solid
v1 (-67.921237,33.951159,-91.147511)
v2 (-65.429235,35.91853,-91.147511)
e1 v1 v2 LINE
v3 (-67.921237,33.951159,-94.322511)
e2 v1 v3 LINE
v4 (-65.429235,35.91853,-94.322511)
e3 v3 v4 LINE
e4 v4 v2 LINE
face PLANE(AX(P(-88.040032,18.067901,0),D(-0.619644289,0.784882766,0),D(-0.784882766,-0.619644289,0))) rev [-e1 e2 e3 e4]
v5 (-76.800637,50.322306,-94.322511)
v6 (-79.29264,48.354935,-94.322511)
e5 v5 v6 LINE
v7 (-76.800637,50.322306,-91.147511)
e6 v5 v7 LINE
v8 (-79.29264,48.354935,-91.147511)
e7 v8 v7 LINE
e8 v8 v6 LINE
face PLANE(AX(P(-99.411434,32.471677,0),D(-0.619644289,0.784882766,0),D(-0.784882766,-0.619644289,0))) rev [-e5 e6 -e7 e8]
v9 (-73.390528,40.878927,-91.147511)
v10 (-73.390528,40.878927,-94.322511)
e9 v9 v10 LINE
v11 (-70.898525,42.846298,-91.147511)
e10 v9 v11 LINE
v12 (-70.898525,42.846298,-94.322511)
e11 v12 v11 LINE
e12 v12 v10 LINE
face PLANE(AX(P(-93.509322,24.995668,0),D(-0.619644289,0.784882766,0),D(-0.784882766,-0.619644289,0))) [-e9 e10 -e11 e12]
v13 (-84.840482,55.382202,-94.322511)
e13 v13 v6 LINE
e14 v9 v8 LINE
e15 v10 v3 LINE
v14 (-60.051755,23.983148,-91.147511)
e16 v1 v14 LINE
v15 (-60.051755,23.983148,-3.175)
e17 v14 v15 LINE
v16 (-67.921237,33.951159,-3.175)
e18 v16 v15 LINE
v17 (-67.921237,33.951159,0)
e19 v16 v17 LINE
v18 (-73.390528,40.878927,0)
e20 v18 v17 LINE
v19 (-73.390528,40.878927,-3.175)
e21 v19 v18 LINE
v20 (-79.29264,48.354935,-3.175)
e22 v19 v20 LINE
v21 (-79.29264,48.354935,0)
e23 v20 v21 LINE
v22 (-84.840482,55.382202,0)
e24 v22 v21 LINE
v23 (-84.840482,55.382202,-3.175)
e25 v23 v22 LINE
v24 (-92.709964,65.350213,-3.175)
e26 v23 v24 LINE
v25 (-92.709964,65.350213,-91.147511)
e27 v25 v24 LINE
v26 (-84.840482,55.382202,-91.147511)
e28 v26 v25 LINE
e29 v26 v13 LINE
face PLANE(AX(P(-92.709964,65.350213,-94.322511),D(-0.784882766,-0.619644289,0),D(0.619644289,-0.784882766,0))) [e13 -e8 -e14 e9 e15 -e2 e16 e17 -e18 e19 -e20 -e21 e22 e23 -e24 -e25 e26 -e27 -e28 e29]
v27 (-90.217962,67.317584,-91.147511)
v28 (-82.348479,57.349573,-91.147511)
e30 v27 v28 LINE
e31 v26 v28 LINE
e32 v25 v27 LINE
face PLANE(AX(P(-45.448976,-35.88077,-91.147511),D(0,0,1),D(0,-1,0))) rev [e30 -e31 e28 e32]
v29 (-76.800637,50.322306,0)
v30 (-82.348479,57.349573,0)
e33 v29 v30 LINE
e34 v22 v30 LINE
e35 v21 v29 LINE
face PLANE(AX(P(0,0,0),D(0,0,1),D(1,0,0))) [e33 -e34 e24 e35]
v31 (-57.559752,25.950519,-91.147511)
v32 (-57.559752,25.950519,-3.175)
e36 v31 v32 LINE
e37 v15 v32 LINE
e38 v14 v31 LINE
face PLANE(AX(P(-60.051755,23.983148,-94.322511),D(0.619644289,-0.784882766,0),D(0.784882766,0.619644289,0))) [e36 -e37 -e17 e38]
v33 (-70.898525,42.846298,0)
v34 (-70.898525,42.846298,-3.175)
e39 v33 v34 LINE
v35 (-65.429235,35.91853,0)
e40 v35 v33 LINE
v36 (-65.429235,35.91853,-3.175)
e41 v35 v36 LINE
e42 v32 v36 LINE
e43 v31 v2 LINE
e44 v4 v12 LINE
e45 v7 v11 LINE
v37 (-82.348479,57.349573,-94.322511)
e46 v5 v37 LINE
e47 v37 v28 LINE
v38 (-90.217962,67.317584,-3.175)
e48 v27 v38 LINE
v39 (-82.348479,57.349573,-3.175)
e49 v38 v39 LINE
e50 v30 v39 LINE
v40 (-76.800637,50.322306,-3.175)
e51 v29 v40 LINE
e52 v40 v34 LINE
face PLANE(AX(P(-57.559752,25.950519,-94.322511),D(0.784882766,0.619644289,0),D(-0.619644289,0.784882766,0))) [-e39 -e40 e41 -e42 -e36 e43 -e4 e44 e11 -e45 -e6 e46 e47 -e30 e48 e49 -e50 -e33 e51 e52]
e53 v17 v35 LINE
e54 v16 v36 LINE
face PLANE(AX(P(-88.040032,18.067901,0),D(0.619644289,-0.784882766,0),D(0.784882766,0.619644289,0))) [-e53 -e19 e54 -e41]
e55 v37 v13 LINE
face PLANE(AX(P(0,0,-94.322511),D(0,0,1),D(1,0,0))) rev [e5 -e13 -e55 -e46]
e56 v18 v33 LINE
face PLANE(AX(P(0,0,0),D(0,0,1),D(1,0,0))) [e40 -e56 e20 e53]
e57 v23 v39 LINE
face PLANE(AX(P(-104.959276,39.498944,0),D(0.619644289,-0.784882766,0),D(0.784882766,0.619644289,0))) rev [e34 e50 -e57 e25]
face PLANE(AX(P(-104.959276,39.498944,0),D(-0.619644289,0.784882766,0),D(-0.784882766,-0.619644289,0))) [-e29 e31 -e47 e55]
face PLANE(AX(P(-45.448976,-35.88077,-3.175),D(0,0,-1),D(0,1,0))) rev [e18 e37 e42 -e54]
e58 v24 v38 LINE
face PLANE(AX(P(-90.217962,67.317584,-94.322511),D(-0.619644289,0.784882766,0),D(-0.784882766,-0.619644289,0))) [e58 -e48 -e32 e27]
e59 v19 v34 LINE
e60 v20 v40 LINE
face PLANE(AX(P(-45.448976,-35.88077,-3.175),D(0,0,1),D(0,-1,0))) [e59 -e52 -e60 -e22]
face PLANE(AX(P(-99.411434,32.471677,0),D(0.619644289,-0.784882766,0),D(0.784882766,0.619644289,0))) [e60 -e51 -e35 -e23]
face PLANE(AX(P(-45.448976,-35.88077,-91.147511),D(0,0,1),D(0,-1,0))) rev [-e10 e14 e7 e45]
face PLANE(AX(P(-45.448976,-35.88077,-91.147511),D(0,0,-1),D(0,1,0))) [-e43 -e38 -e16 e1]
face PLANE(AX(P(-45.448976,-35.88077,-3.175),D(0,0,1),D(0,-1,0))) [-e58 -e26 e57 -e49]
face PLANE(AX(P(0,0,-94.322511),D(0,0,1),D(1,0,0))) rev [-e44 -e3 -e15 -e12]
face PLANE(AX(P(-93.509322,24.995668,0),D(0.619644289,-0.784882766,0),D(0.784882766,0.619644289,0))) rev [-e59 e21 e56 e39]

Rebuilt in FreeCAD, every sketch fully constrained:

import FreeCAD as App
import Part
import Sketcher
Q = App.Units.Quantity

doc = App.newDocument("Part")
body = doc.addObject("PartDesign::Body", "Body")

# Sketch on XY plane
sketch1 = doc.addObject("Sketcher::SketchObject", "Sketch")
body.addObject(sketch1)
sketch1.AttachmentSupport = (doc.XY_Plane, [""])
sketch1.MapMode = "FlatFace"
sketch1.addGeometry(Part.LineSegment(App.Vector(-57.559752, 25.950519, 0), App.Vector(-90.217962, 67.317584, 0)), False)
sketch1.addGeometry(Part.LineSegment(App.Vector(-90.217962, 67.317584, 0), App.Vector(-92.709964, 65.350213, 0)), False)
sketch1.addGeometry(Part.LineSegment(App.Vector(-92.709964, 65.350213, 0), App.Vector(-60.051755, 23.983148, 0)), False)
sketch1.addGeometry(Part.LineSegment(App.Vector(-60.051755, 23.983148, 0), App.Vector(-57.559752, 25.950519, 0)), False)
sketch1.addConstraint(Sketcher.Constraint("Coincident", 0, 2, 1, 1))
sketch1.addConstraint(Sketcher.Constraint("Coincident", 1, 2, 2, 1))
sketch1.addConstraint(Sketcher.Constraint("Coincident", 2, 2, 3, 1))
sketch1.addConstraint(Sketcher.Constraint("Coincident", 3, 2, 0, 1))
sketch1.addConstraint(Sketcher.Constraint("Perpendicular", 0, 1))
sketch1.addConstraint(Sketcher.Constraint("Perpendicular", 1, 2))
sketch1.addConstraint(Sketcher.Constraint("Perpendicular", 2, 3))
sketch1.addConstraint(Sketcher.Constraint("Distance", 1, Q("0.125 in")))
sketch1.addConstraint(Sketcher.Constraint("Distance", 0, Q("52.704769 mm")))
sketch1.addConstraint(Sketcher.Constraint("DistanceX", 0, 2, -1, 1, Q("90.217962 mm")))
sketch1.addConstraint(Sketcher.Constraint("DistanceY", -1, 1, 2, 2, Q("23.983148 mm")))
sketch1.addConstraint(Sketcher.Constraint("DistanceY", -1, 1, 3, 2, Q("25.950519 mm")))
pad1 = doc.addObject("PartDesign::Pad", "Pad")
body.addObject(pad1)
pad1.Profile = sketch1
pad1.Length = 94.322511
pad1.Reversed = True

# Sketch on an angled plane
sketch2 = doc.addObject("Sketcher::SketchObject", "Sketch001")
body.addObject(sketch2)
sketch2.Placement = App.Placement(App.Vector(-22.838179, -18.030141, 0), App.Rotation(App.Vector(0, 0, -1), App.Vector(-0.619644289, 0.784882766, 0), App.Vector(0.784882766, 0.619644289, 0), "ZXY"))
sketch2.addGeometry(Part.LineSegment(App.Vector(91.147511, 108.739456, 0), App.Vector(91.147511, 96.039456, 0)), False)
sketch2.addGeometry(Part.LineSegment(App.Vector(91.147511, 96.039456, 0), App.Vector(94.322511, 96.039456, 0)), False)
sketch2.addGeometry(Part.LineSegment(App.Vector(94.322511, 96.039456, 0), App.Vector(94.322511, 108.739456, 0)), False)
sketch2.addGeometry(Part.LineSegment(App.Vector(94.322511, 108.739456, 0), App.Vector(91.147511, 108.739456, 0)), False)
sketch2.addGeometry(Part.LineSegment(App.Vector(91.147511, 87.086187, 0), App.Vector(91.147511, 77.561187, 0)), False)
sketch2.addGeometry(Part.LineSegment(App.Vector(91.147511, 77.561187, 0), App.Vector(94.322511, 77.561187, 0)), False)
sketch2.addGeometry(Part.LineSegment(App.Vector(94.322511, 77.561187, 0), App.Vector(94.322511, 87.086187, 0)), False)
sketch2.addGeometry(Part.LineSegment(App.Vector(94.322511, 87.086187, 0), App.Vector(91.147511, 87.086187, 0)), False)
sketch2.addGeometry(Part.LineSegment(App.Vector(91.147511, 68.734687, 0), App.Vector(91.147511, 56.034687, 0)), False)
sketch2.addGeometry(Part.LineSegment(App.Vector(91.147511, 56.034687, 0), App.Vector(94.322511, 56.034687, 0)), False)
sketch2.addGeometry(Part.LineSegment(App.Vector(94.322511, 56.034687, 0), App.Vector(94.322511, 68.734687, 0)), False)
sketch2.addGeometry(Part.LineSegment(App.Vector(94.322511, 68.734687, 0), App.Vector(91.147511, 68.734687, 0)), False)
sketch2.addGeometry(Part.LineSegment(App.Vector(0, 108.739456, 0), App.Vector(0, 96.039456, 0)), False)
sketch2.addGeometry(Part.LineSegment(App.Vector(0, 96.039456, 0), App.Vector(3.175, 96.039456, 0)), False)
sketch2.addGeometry(Part.LineSegment(App.Vector(3.175, 96.039456, 0), App.Vector(3.175, 108.739456, 0)), False)
sketch2.addGeometry(Part.LineSegment(App.Vector(3.175, 108.739456, 0), App.Vector(0, 108.739456, 0)), False)
sketch2.addGeometry(Part.LineSegment(App.Vector(0, 87.086187, 0), App.Vector(0, 77.561187, 0)), False)
sketch2.addGeometry(Part.LineSegment(App.Vector(0, 77.561187, 0), App.Vector(3.175, 77.561187, 0)), False)
sketch2.addGeometry(Part.LineSegment(App.Vector(3.175, 77.561187, 0), App.Vector(3.175, 87.086187, 0)), False)
sketch2.addGeometry(Part.LineSegment(App.Vector(3.175, 87.086187, 0), App.Vector(0, 87.086187, 0)), False)
sketch2.addGeometry(Part.LineSegment(App.Vector(0, 68.734687, 0), App.Vector(0, 56.034687, 0)), False)
sketch2.addGeometry(Part.LineSegment(App.Vector(0, 56.034687, 0), App.Vector(3.175, 56.034687, 0)), False)
sketch2.addGeometry(Part.LineSegment(App.Vector(3.175, 56.034687, 0), App.Vector(3.175, 68.734687, 0)), False)
sketch2.addGeometry(Part.LineSegment(App.Vector(3.175, 68.734687, 0), App.Vector(0, 68.734687, 0)), False)
sketch2.addConstraint(Sketcher.Constraint("Coincident", 0, 2, 1, 1))
sketch2.addConstraint(Sketcher.Constraint("Coincident", 1, 2, 2, 1))
sketch2.addConstraint(Sketcher.Constraint("Coincident", 2, 2, 3, 1))
sketch2.addConstraint(Sketcher.Constraint("Coincident", 3, 2, 0, 1))
sketch2.addConstraint(Sketcher.Constraint("Coincident", 4, 2, 5, 1))
sketch2.addConstraint(Sketcher.Constraint("Coincident", 5, 2, 6, 1))
sketch2.addConstraint(Sketcher.Constraint("Coincident", 6, 2, 7, 1))
sketch2.addConstraint(Sketcher.Constraint("Coincident", 7, 2, 4, 1))
sketch2.addConstraint(Sketcher.Constraint("Coincident", 8, 2, 9, 1))
sketch2.addConstraint(Sketcher.Constraint("Coincident", 9, 2, 10, 1))
sketch2.addConstraint(Sketcher.Constraint("Coincident", 10, 2, 11, 1))
sketch2.addConstraint(Sketcher.Constraint("Coincident", 11, 2, 8, 1))
sketch2.addConstraint(Sketcher.Constraint("Coincident", 12, 2, 13, 1))
sketch2.addConstraint(Sketcher.Constraint("Coincident", 13, 2, 14, 1))
sketch2.addConstraint(Sketcher.Constraint("Coincident", 14, 2, 15, 1))
sketch2.addConstraint(Sketcher.Constraint("Coincident", 15, 2, 12, 1))
sketch2.addConstraint(Sketcher.Constraint("Coincident", 16, 2, 17, 1))
sketch2.addConstraint(Sketcher.Constraint("Coincident", 17, 2, 18, 1))
sketch2.addConstraint(Sketcher.Constraint("Coincident", 18, 2, 19, 1))
sketch2.addConstraint(Sketcher.Constraint("Coincident", 19, 2, 16, 1))
sketch2.addConstraint(Sketcher.Constraint("Coincident", 20, 2, 21, 1))
sketch2.addConstraint(Sketcher.Constraint("Coincident", 21, 2, 22, 1))
sketch2.addConstraint(Sketcher.Constraint("Coincident", 22, 2, 23, 1))
sketch2.addConstraint(Sketcher.Constraint("Coincident", 23, 2, 20, 1))
sketch2.addConstraint(Sketcher.Constraint("Vertical", 0))
sketch2.addConstraint(Sketcher.Constraint("Horizontal", 1))
sketch2.addConstraint(Sketcher.Constraint("Vertical", 2))
sketch2.addConstraint(Sketcher.Constraint("Horizontal", 3))
sketch2.addConstraint(Sketcher.Constraint("Vertical", 4))
sketch2.addConstraint(Sketcher.Constraint("Horizontal", 5))
sketch2.addConstraint(Sketcher.Constraint("Vertical", 6))
sketch2.addConstraint(Sketcher.Constraint("Horizontal", 7))
sketch2.addConstraint(Sketcher.Constraint("Vertical", 8))
sketch2.addConstraint(Sketcher.Constraint("Horizontal", 9))
sketch2.addConstraint(Sketcher.Constraint("Vertical", 10))
sketch2.addConstraint(Sketcher.Constraint("Horizontal", 11))
sketch2.addConstraint(Sketcher.Constraint("Vertical", 12))
sketch2.addConstraint(Sketcher.Constraint("Horizontal", 13))
sketch2.addConstraint(Sketcher.Constraint("Vertical", 14))
sketch2.addConstraint(Sketcher.Constraint("Horizontal", 15))
sketch2.addConstraint(Sketcher.Constraint("Vertical", 16))
sketch2.addConstraint(Sketcher.Constraint("Horizontal", 17))
sketch2.addConstraint(Sketcher.Constraint("Vertical", 18))
sketch2.addConstraint(Sketcher.Constraint("Horizontal", 19))
sketch2.addConstraint(Sketcher.Constraint("Vertical", 20))
sketch2.addConstraint(Sketcher.Constraint("Horizontal", 21))
sketch2.addConstraint(Sketcher.Constraint("Vertical", 22))
sketch2.addConstraint(Sketcher.Constraint("Horizontal", 23))
sketch2.addConstraint(Sketcher.Constraint("PointOnObject", 12, 2, -2))
sketch2.addConstraint(Sketcher.Constraint("PointOnObject", 16, 2, -2))
sketch2.addConstraint(Sketcher.Constraint("PointOnObject", 20, 2, -2))
sketch2.addConstraint(Sketcher.Constraint("Horizontal", 1, 2, 12, 2))
sketch2.addConstraint(Sketcher.Constraint("Horizontal", 3, 2, 14, 2))
sketch2.addConstraint(Sketcher.Constraint("Horizontal", 5, 2, 16, 2))
sketch2.addConstraint(Sketcher.Constraint("Horizontal", 7, 2, 18, 2))
sketch2.addConstraint(Sketcher.Constraint("Horizontal", 9, 2, 20, 2))
sketch2.addConstraint(Sketcher.Constraint("Horizontal", 11, 2, 22, 2))
sketch2.addConstraint(Sketcher.Constraint("Vertical", 3, 2, 4, 2))
sketch2.addConstraint(Sketcher.Constraint("Vertical", 2, 2, 5, 2))
sketch2.addConstraint(Sketcher.Constraint("Vertical", 7, 2, 8, 2))
sketch2.addConstraint(Sketcher.Constraint("Vertical", 6, 2, 9, 2))
sketch2.addConstraint(Sketcher.Constraint("Vertical", 14, 2, 17, 2))
sketch2.addConstraint(Sketcher.Constraint("Vertical", 18, 2, 21, 2))
sketch2.addConstraint(Sketcher.Constraint("Equal", 11, 13))
sketch2.addConstraint(Sketcher.Constraint("Equal", 2, 8))
sketch2.addConstraint(Sketcher.Constraint("DistanceY", 0, 2, 0, 1, Q("0.5 in")))
sketch2.addConstraint(Sketcher.Constraint("DistanceX", 1, 1, 1, 2, Q("0.125 in")))
sketch2.addConstraint(Sketcher.Constraint("DistanceY", 4, 2, 4, 1, Q("0.375 in")))
sketch2.addConstraint(Sketcher.Constraint("DistanceY", 8, 2, 4, 2, Q("0.8475 in")))
sketch2.addConstraint(Sketcher.Constraint("DistanceX", -1, 1, 0, 2, Q("91.147511 mm")))
sketch2.addConstraint(Sketcher.Constraint("DistanceY", 4, 2, 0, 2, Q("18.47827 mm")))
sketch2.addConstraint(Sketcher.Constraint("DistanceY", -1, 1, 0, 2, Q("96.039456 mm")))
pocket1 = doc.addObject("PartDesign::Pocket", "Pocket")
body.addObject(pocket1)
pocket1.Profile = sketch2
pocket1.Type = "ThroughAll"

doc.recompute()
